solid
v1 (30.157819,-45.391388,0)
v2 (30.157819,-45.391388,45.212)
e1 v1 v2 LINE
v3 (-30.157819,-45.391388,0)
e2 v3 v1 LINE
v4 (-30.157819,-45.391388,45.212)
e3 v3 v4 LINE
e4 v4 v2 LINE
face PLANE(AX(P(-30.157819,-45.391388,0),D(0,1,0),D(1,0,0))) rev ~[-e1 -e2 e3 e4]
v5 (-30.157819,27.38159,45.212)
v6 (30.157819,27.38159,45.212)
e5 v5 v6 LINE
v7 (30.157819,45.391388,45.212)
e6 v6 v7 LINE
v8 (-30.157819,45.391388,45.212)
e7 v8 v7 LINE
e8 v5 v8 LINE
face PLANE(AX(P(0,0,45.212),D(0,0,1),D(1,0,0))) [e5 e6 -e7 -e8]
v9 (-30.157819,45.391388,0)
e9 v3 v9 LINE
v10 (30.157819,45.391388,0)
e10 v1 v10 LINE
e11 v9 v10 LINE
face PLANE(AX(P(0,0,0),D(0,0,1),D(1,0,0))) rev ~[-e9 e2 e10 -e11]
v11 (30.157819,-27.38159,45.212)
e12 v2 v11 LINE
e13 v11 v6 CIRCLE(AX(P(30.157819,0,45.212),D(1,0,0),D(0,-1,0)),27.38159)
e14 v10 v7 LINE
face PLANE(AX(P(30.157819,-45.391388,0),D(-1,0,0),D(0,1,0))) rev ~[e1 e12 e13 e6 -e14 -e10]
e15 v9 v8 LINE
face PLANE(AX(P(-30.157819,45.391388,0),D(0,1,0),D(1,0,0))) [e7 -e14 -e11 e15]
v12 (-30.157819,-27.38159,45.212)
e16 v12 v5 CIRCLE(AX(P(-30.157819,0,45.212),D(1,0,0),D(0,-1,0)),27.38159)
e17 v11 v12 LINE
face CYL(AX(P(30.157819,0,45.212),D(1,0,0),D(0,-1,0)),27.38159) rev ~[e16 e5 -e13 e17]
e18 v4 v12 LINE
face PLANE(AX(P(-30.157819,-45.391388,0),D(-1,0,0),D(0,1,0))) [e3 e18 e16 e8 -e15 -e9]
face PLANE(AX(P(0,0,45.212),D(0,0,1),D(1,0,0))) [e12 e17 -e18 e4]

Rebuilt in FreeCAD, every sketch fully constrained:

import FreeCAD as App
import Part
import Sketcher
Q = App.Units.Quantity

doc = App.newDocument("Part")
body = doc.addObject("PartDesign::Body", "Body")

sketch1 = body.newObject("Sketcher::SketchObject", "Sketch")
sketch1.AttachmentSupport = (doc.getObject("XY_Plane"), [""])
sketch1.MapMode = "FlatFace"
sketch1.addGeometry([
    Part.LineSegment(App.Vector(-30.157819, 45.391388, 0), App.Vector(-30.157819, -45.391388, 0)),
    Part.LineSegment(App.Vector(-30.157819, -45.391388, 0), App.Vector(30.157819, -45.391388, 0)),
    Part.LineSegment(App.Vector(30.157819, -45.391388, 0), App.Vector(30.157819, 45.391388, 0)),
    Part.LineSegment(App.Vector(30.157819, 45.391388, 0), App.Vector(-30.157819, 45.391388, 0)),
], False)
sketch1.addConstraint([
    Sketcher.Constraint("Coincident", 0, 2, 1, 1),
    Sketcher.Constraint("Coincident", 1, 2, 2, 1),
    Sketcher.Constraint("Coincident", 2, 2, 3, 1),
    Sketcher.Constraint("Coincident", 3, 2, 0, 1),
    Sketcher.Constraint("Vertical", 0),
    Sketcher.Constraint("Horizontal", 1),
    Sketcher.Constraint("Vertical", 2),
    Sketcher.Constraint("Horizontal", 3),
    Sketcher.Constraint("Symmetric", 0, 2, 2, 2, -1, 1),
    Sketcher.Constraint("DistanceX", 1, 1, 1, 2, 60.315638),
    Sketcher.Constraint("DistanceY", 0, 2, 0, 1, 90.782776),
])
pad1 = body.newObject("PartDesign::Pad", "Pad")
pad1.Profile = sketch1
pad1.Length = Q("1.78 in")

sketch2 = body.newObject("Sketcher::SketchObject", "Sketch001")
sketch2.AttachmentSupport = (doc.getObject("YZ_Plane"), [""])
sketch2.MapMode = "FlatFace"
sketch2.AttachmentOffset = App.Placement(App.Vector(0, 0, 30.157819), App.Rotation())
sketch2.addGeometry(Part.Circle(App.Vector(0, 45.212, 0), App.Vector(0, 0, 1), 27.38159), False)
sketch2.addConstraint([
    Sketcher.Constraint("PointOnObject", 0, 3, -2),
    Sketcher.Constraint("DistanceY", -1, 1, 0, 3, Q("1.78 in")),
    Sketcher.Constraint("Diameter", 0, 54.76318),
])
pocket1 = body.newObject("PartDesign::Pocket", "Pocket")
pocket1.Profile = sketch2
pocket1.Length = Q("3.16 in")

doc.recompute()
